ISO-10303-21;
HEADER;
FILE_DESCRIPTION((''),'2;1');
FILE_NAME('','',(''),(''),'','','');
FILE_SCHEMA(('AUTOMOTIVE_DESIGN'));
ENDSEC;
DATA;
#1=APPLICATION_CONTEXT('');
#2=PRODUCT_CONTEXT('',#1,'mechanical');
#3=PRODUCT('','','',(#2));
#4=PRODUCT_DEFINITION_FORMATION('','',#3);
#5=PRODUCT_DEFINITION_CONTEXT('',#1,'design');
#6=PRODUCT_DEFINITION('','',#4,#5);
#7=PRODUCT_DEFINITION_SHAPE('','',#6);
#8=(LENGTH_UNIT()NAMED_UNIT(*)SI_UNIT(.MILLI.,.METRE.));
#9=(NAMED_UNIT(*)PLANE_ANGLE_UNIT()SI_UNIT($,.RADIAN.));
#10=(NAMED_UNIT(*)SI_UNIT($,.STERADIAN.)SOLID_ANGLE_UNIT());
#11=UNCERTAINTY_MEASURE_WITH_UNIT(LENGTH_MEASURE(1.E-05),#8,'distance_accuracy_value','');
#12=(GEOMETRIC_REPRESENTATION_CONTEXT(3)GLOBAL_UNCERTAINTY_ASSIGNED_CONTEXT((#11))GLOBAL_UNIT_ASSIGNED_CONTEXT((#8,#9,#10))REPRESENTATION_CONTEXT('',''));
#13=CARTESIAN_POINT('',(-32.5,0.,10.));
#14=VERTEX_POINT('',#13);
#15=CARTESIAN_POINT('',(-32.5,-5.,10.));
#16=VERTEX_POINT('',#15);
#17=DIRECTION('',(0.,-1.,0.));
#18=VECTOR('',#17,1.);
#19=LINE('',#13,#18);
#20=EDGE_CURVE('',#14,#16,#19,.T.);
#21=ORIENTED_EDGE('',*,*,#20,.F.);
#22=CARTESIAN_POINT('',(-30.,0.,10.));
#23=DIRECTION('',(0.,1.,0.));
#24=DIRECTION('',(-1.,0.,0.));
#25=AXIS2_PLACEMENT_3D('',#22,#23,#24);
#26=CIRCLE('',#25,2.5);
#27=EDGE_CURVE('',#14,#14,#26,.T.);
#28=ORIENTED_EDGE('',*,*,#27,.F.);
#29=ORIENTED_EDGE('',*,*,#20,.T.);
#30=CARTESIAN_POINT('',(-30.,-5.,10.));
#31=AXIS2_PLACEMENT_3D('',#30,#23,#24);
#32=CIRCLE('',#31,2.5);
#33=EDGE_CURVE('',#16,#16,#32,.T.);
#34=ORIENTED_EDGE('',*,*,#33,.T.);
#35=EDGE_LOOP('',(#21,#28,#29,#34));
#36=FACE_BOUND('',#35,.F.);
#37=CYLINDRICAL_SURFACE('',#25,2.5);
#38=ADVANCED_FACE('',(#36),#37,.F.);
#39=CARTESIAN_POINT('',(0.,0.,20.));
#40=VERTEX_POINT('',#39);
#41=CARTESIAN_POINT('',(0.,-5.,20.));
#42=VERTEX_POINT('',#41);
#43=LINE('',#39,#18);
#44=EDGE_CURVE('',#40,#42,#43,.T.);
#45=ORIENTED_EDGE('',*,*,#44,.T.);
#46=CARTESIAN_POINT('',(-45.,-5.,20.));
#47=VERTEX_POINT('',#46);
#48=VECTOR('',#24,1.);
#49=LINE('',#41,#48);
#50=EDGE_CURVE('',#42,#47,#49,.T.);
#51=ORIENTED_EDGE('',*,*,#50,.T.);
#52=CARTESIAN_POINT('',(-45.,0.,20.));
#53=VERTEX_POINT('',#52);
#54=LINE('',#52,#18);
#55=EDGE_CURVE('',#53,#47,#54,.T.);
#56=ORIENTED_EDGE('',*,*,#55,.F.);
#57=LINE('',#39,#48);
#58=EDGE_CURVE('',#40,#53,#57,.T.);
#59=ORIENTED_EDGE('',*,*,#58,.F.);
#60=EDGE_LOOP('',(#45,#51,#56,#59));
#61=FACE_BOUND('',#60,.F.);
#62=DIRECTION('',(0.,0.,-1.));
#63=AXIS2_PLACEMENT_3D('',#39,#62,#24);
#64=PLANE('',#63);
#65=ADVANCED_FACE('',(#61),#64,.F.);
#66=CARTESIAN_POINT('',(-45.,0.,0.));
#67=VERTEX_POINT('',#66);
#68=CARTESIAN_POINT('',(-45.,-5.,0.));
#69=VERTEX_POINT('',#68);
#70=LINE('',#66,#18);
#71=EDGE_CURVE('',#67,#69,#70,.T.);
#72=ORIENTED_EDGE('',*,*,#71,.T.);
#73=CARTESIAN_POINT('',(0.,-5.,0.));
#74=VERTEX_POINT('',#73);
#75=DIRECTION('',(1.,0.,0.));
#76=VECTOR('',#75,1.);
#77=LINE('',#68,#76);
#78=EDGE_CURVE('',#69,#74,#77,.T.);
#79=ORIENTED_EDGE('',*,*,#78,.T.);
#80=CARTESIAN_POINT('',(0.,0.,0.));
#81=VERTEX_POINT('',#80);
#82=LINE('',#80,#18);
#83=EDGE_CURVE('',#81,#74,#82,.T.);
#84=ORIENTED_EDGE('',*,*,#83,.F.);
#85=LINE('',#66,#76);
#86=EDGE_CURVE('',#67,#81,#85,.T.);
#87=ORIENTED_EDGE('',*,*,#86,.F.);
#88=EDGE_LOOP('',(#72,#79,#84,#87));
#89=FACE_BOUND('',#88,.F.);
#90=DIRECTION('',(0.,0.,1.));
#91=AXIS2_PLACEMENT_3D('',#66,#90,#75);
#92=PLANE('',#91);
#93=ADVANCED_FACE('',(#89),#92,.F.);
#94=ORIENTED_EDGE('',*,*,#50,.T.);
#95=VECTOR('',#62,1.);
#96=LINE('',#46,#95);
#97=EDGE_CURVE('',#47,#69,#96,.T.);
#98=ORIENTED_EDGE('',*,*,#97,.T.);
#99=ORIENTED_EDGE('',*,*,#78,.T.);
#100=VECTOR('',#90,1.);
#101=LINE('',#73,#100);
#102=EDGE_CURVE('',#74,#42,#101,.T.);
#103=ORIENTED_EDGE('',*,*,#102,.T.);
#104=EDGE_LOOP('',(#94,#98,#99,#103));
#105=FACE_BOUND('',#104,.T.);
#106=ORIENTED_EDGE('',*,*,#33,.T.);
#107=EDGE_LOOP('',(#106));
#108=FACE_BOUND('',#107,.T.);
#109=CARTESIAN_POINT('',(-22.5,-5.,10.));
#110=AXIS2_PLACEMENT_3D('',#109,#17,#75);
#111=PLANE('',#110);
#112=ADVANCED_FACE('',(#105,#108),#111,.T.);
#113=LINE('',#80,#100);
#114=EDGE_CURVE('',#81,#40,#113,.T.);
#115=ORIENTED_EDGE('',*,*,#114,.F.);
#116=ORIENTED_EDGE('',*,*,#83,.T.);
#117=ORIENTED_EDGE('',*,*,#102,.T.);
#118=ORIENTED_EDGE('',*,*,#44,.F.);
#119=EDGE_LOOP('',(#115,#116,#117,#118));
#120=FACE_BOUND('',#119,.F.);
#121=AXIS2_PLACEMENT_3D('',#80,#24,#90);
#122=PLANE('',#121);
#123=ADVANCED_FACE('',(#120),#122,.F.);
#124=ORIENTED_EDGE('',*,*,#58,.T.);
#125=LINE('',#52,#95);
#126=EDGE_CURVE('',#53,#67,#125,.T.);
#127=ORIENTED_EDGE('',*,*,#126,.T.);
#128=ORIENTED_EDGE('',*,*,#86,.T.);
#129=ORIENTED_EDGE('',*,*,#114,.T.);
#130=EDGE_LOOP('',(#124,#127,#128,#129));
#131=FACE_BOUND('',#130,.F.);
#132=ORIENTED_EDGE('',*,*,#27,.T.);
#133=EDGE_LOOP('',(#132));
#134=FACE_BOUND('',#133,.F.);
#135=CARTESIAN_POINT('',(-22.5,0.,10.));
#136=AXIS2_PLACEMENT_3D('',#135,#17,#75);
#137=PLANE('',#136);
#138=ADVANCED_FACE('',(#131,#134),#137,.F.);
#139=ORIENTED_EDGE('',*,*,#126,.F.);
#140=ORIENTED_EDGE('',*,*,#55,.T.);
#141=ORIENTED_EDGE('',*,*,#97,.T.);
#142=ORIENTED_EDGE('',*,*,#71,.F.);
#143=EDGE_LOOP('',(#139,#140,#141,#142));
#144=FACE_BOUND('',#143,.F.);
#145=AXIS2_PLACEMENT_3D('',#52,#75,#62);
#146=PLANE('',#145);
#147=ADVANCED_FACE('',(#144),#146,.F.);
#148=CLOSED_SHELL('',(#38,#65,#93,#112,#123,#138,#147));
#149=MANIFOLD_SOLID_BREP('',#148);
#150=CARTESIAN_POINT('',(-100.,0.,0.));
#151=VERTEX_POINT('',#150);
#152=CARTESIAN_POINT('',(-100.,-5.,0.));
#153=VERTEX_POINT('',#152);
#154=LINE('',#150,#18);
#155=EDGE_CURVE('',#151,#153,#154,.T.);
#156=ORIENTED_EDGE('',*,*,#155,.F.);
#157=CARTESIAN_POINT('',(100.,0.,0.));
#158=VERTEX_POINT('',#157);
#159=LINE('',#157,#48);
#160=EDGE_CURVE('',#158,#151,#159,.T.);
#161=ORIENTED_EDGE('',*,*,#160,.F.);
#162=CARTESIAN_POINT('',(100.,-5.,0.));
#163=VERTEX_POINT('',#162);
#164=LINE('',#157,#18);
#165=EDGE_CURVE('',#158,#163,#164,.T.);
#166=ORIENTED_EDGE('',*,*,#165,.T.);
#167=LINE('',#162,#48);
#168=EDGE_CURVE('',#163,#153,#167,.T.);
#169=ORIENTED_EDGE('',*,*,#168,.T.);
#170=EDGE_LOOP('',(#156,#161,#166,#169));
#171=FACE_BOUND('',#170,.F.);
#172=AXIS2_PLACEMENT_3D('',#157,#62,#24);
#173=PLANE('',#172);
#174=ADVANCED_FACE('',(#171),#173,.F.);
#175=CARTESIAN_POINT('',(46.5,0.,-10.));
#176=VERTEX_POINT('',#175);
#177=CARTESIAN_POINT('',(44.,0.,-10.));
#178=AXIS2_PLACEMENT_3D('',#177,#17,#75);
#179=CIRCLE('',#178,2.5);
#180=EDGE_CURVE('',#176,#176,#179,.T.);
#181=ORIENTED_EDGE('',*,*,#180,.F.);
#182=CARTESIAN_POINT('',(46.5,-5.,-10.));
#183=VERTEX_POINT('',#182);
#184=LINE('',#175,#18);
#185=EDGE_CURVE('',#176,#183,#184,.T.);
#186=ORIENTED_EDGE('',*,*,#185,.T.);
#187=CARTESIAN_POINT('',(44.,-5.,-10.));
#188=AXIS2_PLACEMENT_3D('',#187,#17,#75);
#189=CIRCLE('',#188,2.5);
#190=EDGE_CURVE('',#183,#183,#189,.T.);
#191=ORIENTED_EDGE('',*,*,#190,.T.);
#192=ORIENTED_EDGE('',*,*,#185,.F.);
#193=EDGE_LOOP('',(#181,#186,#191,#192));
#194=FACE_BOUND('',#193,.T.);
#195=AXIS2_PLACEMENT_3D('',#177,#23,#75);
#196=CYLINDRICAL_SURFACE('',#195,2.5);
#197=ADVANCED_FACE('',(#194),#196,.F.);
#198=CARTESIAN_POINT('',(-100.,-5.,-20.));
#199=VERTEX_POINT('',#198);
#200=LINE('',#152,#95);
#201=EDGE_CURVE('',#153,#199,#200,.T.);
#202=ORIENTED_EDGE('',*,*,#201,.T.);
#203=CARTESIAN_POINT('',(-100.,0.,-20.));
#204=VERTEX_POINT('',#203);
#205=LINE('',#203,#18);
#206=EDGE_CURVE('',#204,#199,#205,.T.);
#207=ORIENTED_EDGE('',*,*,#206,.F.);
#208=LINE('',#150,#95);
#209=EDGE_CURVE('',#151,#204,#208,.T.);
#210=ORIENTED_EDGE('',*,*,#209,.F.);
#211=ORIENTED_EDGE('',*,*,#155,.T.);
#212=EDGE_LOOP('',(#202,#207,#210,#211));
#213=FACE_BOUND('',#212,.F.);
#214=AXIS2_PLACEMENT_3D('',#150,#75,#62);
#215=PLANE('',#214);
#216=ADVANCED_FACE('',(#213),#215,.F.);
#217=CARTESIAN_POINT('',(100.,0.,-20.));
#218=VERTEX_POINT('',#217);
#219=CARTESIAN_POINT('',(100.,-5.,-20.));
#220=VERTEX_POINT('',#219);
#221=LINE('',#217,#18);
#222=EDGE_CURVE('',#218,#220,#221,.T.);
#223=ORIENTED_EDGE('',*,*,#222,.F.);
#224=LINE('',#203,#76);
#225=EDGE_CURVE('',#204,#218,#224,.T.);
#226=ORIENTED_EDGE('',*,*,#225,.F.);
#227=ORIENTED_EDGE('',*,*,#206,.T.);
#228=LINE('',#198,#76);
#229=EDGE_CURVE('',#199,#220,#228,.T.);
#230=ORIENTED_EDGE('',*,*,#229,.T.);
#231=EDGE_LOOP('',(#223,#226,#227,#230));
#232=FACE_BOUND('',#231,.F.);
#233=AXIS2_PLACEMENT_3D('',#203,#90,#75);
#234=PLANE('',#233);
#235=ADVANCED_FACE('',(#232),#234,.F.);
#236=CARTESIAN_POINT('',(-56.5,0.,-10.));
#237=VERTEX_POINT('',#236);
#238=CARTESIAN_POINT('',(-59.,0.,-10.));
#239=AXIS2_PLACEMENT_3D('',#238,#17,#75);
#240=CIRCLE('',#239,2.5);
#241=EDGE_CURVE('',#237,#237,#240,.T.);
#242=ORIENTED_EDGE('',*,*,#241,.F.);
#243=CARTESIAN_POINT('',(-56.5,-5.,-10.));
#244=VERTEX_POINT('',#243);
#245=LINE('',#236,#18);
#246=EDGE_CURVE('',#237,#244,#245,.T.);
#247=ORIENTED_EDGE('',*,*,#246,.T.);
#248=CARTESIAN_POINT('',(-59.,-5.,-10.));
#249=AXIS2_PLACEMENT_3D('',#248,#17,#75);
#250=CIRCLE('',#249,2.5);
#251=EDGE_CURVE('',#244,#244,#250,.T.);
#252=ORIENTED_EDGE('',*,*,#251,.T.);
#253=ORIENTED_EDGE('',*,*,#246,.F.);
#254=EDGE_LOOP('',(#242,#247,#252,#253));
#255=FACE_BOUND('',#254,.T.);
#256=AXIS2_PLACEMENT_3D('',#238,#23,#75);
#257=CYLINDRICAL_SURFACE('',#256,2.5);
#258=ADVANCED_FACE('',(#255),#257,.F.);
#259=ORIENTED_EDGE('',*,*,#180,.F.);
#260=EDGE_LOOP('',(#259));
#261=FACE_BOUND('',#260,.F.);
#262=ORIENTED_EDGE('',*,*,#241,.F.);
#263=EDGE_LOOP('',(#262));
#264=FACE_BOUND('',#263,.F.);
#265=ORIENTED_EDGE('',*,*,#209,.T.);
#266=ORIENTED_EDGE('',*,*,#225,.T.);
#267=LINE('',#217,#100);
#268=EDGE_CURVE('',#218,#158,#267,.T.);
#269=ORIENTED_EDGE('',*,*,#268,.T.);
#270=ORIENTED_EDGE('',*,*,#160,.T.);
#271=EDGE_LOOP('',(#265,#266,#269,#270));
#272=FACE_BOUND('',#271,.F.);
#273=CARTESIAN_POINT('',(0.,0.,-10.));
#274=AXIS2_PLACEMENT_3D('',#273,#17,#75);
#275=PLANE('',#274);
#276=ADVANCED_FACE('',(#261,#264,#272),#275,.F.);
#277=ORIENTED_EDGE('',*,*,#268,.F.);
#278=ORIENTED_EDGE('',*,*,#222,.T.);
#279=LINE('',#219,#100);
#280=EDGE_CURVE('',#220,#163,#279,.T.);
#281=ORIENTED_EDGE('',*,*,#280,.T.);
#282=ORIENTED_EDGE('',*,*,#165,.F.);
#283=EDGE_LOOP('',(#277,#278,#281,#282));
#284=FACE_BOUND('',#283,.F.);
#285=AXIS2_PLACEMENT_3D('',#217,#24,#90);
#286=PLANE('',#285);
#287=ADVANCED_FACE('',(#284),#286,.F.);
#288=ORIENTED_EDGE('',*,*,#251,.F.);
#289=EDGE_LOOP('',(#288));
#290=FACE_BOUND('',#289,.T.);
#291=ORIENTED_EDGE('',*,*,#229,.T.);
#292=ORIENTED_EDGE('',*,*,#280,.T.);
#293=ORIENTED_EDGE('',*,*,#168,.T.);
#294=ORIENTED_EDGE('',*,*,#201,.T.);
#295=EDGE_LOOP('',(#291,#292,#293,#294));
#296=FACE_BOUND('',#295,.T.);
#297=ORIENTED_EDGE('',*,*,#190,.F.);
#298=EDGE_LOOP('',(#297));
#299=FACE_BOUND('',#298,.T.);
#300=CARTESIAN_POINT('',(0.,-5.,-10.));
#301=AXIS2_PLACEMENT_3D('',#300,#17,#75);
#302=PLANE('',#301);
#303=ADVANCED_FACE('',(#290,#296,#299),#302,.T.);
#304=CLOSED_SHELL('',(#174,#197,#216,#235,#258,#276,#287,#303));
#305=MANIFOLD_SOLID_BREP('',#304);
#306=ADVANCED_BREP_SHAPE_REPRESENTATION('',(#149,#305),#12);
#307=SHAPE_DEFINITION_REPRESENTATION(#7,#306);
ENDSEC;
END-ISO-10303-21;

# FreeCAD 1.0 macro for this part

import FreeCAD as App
import Part
import Sketcher
from FreeCAD import Vector
Q = App.Units.Quantity


def add_polygon(sketch, points):
    """Adds a closed chain of lines whose ends are joined by coincident constraints."""
    first, n = sketch.GeometryCount, len(points)
    for a, b in zip(points, points[1:] + points[:1]):
        sketch.addGeometry(Part.LineSegment(App.Vector(*a, 0), App.Vector(*b, 0)), False)
    for i in range(n):
        sketch.addConstraint(Sketcher.Constraint("Coincident", first + i, 2, first + (i + 1) % n, 1))

doc = App.newDocument("Part")
params = doc.addObject("Spreadsheet::Sheet", "Params")
for row, (alias, value) in enumerate([
    ("sketch1_diameter", "5 mm"),
    ("sketch1_width", "200 mm"),
    ("sketch1_height", "20 mm"),
    ("pad1_length", "5 mm"),
    ("sketch2_diameter", "5 mm"),
    ("sketch2_width", "45 mm"),
    ("sketch2_height", "20 mm"),
    ("pad2_length", "5 mm"),
], start=1):
    params.set(f"A{row}", alias)
    params.set(f"B{row}", "=" + value)
    params.setAlias(f"B{row}", alias)

body = doc.addObject("PartDesign::Body", "Body")

# Sketch on XZ plane
sketch1 = body.newObject("Sketcher::SketchObject", "Sketch")
sketch1.AttachmentSupport = (doc.getObject("XZ_Plane"), [""])
sketch1.MapMode = "FlatFace"
add_polygon(sketch1, [(100, 0), (-100, 0), (-100, -20), (100, -20)])  # lines 0-3
sketch1.addGeometry(Part.Circle(Vector(-59, -10, 0), Vector(0, 0, 1), 2.5), False)  # 4
sketch1.addGeometry(Part.Circle(Vector(44, -10, 0), Vector(0, 0, 1), 2.5), False)  # 5
sketch1.addConstraint([
    Sketcher.Constraint("Horizontal", 0),
    Sketcher.Constraint("Vertical", 1),
    Sketcher.Constraint("Horizontal", 2),
    Sketcher.Constraint("Vertical", 3),
    Sketcher.Constraint("Equal", 4, 5),
    Sketcher.Constraint("Symmetric", 0, 2, 3, 2, -1, 1),
    Sketcher.Constraint("Horizontal", 4, 3, 5, 3),
    Sketcher.Constraint("Diameter", 4, Q("5 mm")),
    Sketcher.Constraint("DistanceX", 0, 2, 0, 1, Q("200 mm")),
    Sketcher.Constraint("DistanceY", 1, 2, 1, 1, Q("20 mm")),
    Sketcher.Constraint("DistanceX", 4, 3, -1, 1, Q("59 mm")),
    Sketcher.Constraint("DistanceY", 4, 3, -1, 1, Q("10 mm")),
    Sketcher.Constraint("DistanceX", -1, 1, 5, 3, Q("44 mm")),
])
sketch1.setExpression("Constraints[11]", "Params.sketch1_diameter")
sketch1.setExpression("Constraints[12]", "Params.sketch1_width")
sketch1.setExpression("Constraints[13]", "Params.sketch1_height")
pad1 = body.newObject("PartDesign::Pad", "Pad")
pad1.Profile = sketch1
pad1.setExpression("Length", "Params.pad1_length")
body2 = doc.addObject("PartDesign::Body", "Body001")

# Sketch on XZ plane
sketch2 = body2.newObject("Sketcher::SketchObject", "Sketch001")
sketch2.AttachmentSupport = (doc.getObject("XZ_Plane001"), [""])
sketch2.MapMode = "FlatFace"
add_polygon(sketch2, [(-45, 0), (0, 0), (0, 20), (-45, 20)])  # lines 0-3
sketch2.addGeometry(Part.Circle(Vector(-30, 10, 0), Vector(0, 0, 1), 2.5), False)  # 4
sketch2.addConstraint([
    Sketcher.Constraint("Horizontal", 0),
    Sketcher.Constraint("Vertical", 1),
    Sketcher.Constraint("Horizontal", 2),
    Sketcher.Constraint("Vertical", 3),
    Sketcher.Constraint("Coincident", 0, 2, -1, 1),
    Sketcher.Constraint("Diameter", 4, Q("5 mm")),
    Sketcher.Constraint("DistanceX", 0, 1, 0, 2, Q("45 mm")),
    Sketcher.Constraint("DistanceY", 1, 1, 1, 2, Q("20 mm")),
    Sketcher.Constraint("DistanceX", 4, 3, -1, 1, Q("30 mm")),
    Sketcher.Constraint("DistanceY", -1, 1, 4, 3, Q("10 mm")),
])
sketch2.setExpression("Constraints[9]", "Params.sketch2_diameter")
sketch2.setExpression("Constraints[10]", "Params.sketch2_width")
sketch2.setExpression("Constraints[11]", "Params.sketch2_height")
pad2 = body2.newObject("PartDesign::Pad", "Pad001")
pad2.Profile = sketch2
pad2.setExpression("Length", "Params.pad2_length")

doc.recompute()
